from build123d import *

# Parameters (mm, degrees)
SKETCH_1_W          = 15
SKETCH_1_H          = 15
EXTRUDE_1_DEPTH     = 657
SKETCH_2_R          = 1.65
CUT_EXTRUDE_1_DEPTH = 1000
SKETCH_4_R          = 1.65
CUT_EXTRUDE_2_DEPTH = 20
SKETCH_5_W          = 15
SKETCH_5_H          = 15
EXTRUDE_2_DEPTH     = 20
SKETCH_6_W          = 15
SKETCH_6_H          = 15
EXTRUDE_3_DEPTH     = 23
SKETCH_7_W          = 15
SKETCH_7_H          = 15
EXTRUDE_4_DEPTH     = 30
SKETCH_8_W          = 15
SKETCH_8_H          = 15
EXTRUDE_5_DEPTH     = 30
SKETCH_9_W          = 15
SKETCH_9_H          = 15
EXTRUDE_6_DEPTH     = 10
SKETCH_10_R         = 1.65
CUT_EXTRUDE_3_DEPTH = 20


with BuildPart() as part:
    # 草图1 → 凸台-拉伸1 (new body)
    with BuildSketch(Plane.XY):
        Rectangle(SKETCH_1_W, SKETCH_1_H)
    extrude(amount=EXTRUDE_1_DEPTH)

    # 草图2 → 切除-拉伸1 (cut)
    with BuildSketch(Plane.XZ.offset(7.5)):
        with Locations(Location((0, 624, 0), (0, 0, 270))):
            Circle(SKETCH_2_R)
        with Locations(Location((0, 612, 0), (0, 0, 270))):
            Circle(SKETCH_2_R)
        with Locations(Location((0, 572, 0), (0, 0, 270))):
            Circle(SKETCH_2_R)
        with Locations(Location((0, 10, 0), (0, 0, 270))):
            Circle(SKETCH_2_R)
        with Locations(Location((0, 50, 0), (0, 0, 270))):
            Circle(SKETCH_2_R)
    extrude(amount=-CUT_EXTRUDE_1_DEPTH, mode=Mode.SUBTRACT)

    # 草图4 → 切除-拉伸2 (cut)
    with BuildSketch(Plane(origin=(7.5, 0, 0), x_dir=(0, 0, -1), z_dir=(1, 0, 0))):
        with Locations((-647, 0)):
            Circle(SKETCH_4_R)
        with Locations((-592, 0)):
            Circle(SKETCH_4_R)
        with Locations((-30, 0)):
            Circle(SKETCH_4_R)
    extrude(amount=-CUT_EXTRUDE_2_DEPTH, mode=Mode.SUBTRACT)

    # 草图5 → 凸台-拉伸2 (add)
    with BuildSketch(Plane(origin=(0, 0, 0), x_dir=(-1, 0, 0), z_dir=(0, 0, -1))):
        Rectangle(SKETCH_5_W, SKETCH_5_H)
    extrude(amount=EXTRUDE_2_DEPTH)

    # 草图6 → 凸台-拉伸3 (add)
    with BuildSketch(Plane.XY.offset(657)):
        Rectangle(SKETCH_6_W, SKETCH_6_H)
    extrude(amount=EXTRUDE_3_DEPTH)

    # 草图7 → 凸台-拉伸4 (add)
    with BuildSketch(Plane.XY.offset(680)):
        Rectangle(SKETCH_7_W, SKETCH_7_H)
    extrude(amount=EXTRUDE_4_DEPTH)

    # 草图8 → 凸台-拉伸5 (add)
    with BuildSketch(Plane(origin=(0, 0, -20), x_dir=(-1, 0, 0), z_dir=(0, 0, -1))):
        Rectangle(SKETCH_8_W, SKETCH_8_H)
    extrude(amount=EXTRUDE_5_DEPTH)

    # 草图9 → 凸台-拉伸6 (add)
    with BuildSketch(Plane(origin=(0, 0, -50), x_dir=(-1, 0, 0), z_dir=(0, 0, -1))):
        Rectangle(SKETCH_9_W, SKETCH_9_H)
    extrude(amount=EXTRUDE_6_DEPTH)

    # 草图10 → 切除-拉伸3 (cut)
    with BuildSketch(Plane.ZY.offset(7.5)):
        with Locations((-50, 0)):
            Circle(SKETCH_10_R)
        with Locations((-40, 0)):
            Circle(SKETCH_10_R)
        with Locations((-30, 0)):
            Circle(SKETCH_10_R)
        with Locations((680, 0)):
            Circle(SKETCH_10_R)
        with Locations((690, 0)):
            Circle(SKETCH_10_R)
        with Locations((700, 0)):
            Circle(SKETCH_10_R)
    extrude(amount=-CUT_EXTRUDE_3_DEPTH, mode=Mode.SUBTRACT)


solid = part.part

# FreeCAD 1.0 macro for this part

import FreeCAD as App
import Part
import Sketcher
from FreeCAD import Vector


def add_polygon(sketch, points):
    """Adds a closed chain of lines whose ends are joined by coincident constraints."""
    first, n = sketch.GeometryCount, len(points)
    for a, b in zip(points, points[1:] + points[:1]):
        sketch.addGeometry(Part.LineSegment(App.Vector(*a, 0), App.Vector(*b, 0)), False)
    for i in range(n):
        sketch.addConstraint(Sketcher.Constraint("Coincident", first + i, 2, first + (i + 1) % n, 1))

doc = App.newDocument("Part")
body = doc.addObject("PartDesign::Body", "Body")

# Sketch on XY plane
sketch1 = body.newObject("Sketcher::SketchObject", "Sketch")
sketch1.AttachmentSupport = (doc.getObject("XY_Plane"), [""])
sketch1.MapMode = "FlatFace"
add_polygon(sketch1, [(-8, 8), (-8, -8), (8, -8), (8, 8)])  # lines 0-3
sketch1.addConstraint(Sketcher.Constraint("Vertical", 0))
sketch1.addConstraint(Sketcher.Constraint("Horizontal", 1))
sketch1.addConstraint(Sketcher.Constraint("Vertical", 2))
sketch1.addConstraint(Sketcher.Constraint("Horizontal", 3))
sketch1.addConstraint(Sketcher.Constraint("Symmetric", 0, 2, 2, 2, -1, 1))
sketch1.addConstraint(Sketcher.Constraint("Equal", 3, 0))
sketch1.addConstraint(Sketcher.Constraint("DistanceX", 1, 1, 1, 2, 15.0))
pad1 = body.newObject("PartDesign::Pad", "Pad")
pad1.Profile = sketch1
pad1.Length = 657

# Sketch on XZ plane
sketch2 = body.newObject("Sketcher::SketchObject", "Sketch001")
sketch2.AttachmentSupport = (doc.getObject("XZ_Plane"), [""])
sketch2.MapMode = "FlatFace"
sketch2.AttachmentOffset = App.Placement(Vector(0, 0, 7.5), App.Rotation())
sketch2.addGeometry(Part.Circle(Vector(0, 624, 0), Vector(0, 0, 1), 1.6), False)
sketch2.addGeometry(Part.Circle(Vector(0, 612, 0), Vector(0, 0, 1), 1.6), False)
sketch2.addGeometry(Part.Circle(Vector(0, 572, 0), Vector(0, 0, 1), 1.6), False)
sketch2.addGeometry(Part.Circle(Vector(0, 10, 0), Vector(0, 0, 1), 1.6), False)
sketch2.addGeometry(Part.Circle(Vector(0, 50, 0), Vector(0, 0, 1), 1.6), False)
sketch2.addConstraint(Sketcher.Constraint("Equal", 0, 1))
sketch2.addConstraint(Sketcher.Constraint("Equal", 1, 2))
sketch2.addConstraint(Sketcher.Constraint("Equal", 2, 3))
sketch2.addConstraint(Sketcher.Constraint("Equal", 3, 4))
sketch2.addConstraint(Sketcher.Constraint("PointOnObject", 0, 3, -2))
sketch2.addConstraint(Sketcher.Constraint("PointOnObject", 1, 3, -2))
sketch2.addConstraint(Sketcher.Constraint("PointOnObject", 2, 3, -2))
sketch2.addConstraint(Sketcher.Constraint("PointOnObject", 3, 3, -2))
sketch2.addConstraint(Sketcher.Constraint("PointOnObject", 4, 3, -2))
sketch2.addConstraint(Sketcher.Constraint("Diameter", 0, 3.3))
sketch2.addConstraint(Sketcher.Constraint("DistanceY", -1, 1, 0, 3, 624.0))
sketch2.addConstraint(Sketcher.Constraint("DistanceY", -1, 1, 1, 3, 612.0))
sketch2.addConstraint(Sketcher.Constraint("DistanceY", -1, 1, 2, 3, 572.0))
sketch2.addConstraint(Sketcher.Constraint("DistanceY", -1, 1, 3, 3, 10.0))
sketch2.addConstraint(Sketcher.Constraint("DistanceY", -1, 1, 4, 3, 50.0))
pocket1 = body.newObject("PartDesign::Pocket", "Pocket")
pocket1.Profile = sketch2
pocket1.Length = 1000

# Sketch on YZ plane
sketch3 = body.newObject("Sketcher::SketchObject", "Sketch002")
sketch3.AttachmentSupport = (doc.getObject("YZ_Plane"), [""])
sketch3.MapMode = "FlatFace"
sketch3.AttachmentOffset = App.Placement(Vector(0, 0, 7.5), App.Rotation())
sketch3.addGeometry(Part.Circle(Vector(0, 647, 0), Vector(0, 0, 1), 1.6), False)
sketch3.addGeometry(Part.Circle(Vector(0, 592, 0), Vector(0, 0, 1), 1.6), False)
sketch3.addGeometry(Part.Circle(Vector(0, 30, 0), Vector(0, 0, 1), 1.6), False)
sketch3.addConstraint(Sketcher.Constraint("Equal", 0, 1))
sketch3.addConstraint(Sketcher.Constraint("Equal", 1, 2))
sketch3.addConstraint(Sketcher.Constraint("PointOnObject", 0, 3, -2))
sketch3.addConstraint(Sketcher.Constraint("PointOnObject", 1, 3, -2))
sketch3.addConstraint(Sketcher.Constraint("PointOnObject", 2, 3, -2))
sketch3.addConstraint(Sketcher.Constraint("Diameter", 0, 3.3))
sketch3.addConstraint(Sketcher.Constraint("DistanceY", -1, 1, 0, 3, 647.0))
sketch3.addConstraint(Sketcher.Constraint("DistanceY", -1, 1, 1, 3, 592.0))
sketch3.addConstraint(Sketcher.Constraint("DistanceY", -1, 1, 2, 3, 30.0))
pocket2 = body.newObject("PartDesign::Pocket", "Pocket001")
pocket2.Profile = sketch3
pocket2.Length = 20

# Sketch on XY plane
sketch4 = body.newObject("Sketcher::SketchObject", "Sketch003")
sketch4.AttachmentSupport = (doc.getObject("XY_Plane"), [""])
sketch4.MapMode = "FlatFace"
add_polygon(sketch4, [(8, 8), (8, -8), (-8, -8), (-8, 8)])  # lines 0-3
sketch4.addConstraint(Sketcher.Constraint("Vertical", 0))
sketch4.addConstraint(Sketcher.Constraint("Horizontal", 1))
sketch4.addConstraint(Sketcher.Constraint("Vertical", 2))
sketch4.addConstraint(Sketcher.Constraint("Horizontal", 3))
sketch4.addConstraint(Sketcher.Constraint("Symmetric", 0, 2, 2, 2, -1, 1))
sketch4.addConstraint(Sketcher.Constraint("Equal", 3, 0))
sketch4.addConstraint(Sketcher.Constraint("DistanceX", 1, 2, 1, 1, 15.0))
pad2 = body.newObject("PartDesign::Pad", "Pad001")
pad2.Profile = sketch4
pad2.Length = 20
pad2.Reversed = True

# Sketch on XY plane
sketch5 = body.newObject("Sketcher::SketchObject", "Sketch004")
sketch5.AttachmentSupport = (doc.getObject("XY_Plane"), [""])
sketch5.MapMode = "FlatFace"
sketch5.AttachmentOffset = App.Placement(Vector(0, 0, 657), App.Rotation())
add_polygon(sketch5, [(-8, 8), (-8, -8), (8, -8), (8, 8)])  # lines 0-3
sketch5.addConstraint(Sketcher.Constraint("Vertical", 0))
sketch5.addConstraint(Sketcher.Constraint("Horizontal", 1))
sketch5.addConstraint(Sketcher.Constraint("Vertical", 2))
sketch5.addConstraint(Sketcher.Constraint("Horizontal", 3))
sketch5.addConstraint(Sketcher.Constraint("Symmetric", 0, 2, 2, 2, -1, 1))
sketch5.addConstraint(Sketcher.Constraint("Equal", 3, 0))
sketch5.addConstraint(Sketcher.Constraint("DistanceX", 1, 1, 1, 2, 15.0))
pad3 = body.newObject("PartDesign::Pad", "Pad002")
pad3.Profile = sketch5
pad3.Length = 23

# Sketch on XY plane
sketch6 = body.newObject("Sketcher::SketchObject", "Sketch005")
sketch6.AttachmentSupport = (doc.getObject("XY_Plane"), [""])
sketch6.MapMode = "FlatFace"
sketch6.AttachmentOffset = App.Placement(Vector(0, 0, 680), App.Rotation())
add_polygon(sketch6, [(-8, 8), (-8, -8), (8, -8), (8, 8)])  # lines 0-3
sketch6.addConstraint(Sketcher.Constraint("Vertical", 0))
sketch6.addConstraint(Sketcher.Constraint("Horizontal", 1))
sketch6.addConstraint(Sketcher.Constraint("Vertical", 2))
sketch6.addConstraint(Sketcher.Constraint("Horizontal", 3))
sketch6.addConstraint(Sketcher.Constraint("Symmetric", 0, 2, 2, 2, -1, 1))
sketch6.addConstraint(Sketcher.Constraint("Equal", 3, 0))
sketch6.addConstraint(Sketcher.Constraint("DistanceX", 1, 1, 1, 2, 15.0))
pad4 = body.newObject("PartDesign::Pad", "Pad003")
pad4.Profile = sketch6
pad4.Length = 30

# Sketch on XY plane
sketch7 = body.newObject("Sketcher::SketchObject", "Sketch006")
sketch7.AttachmentSupport = (doc.getObject("XY_Plane"), [""])
sketch7.MapMode = "FlatFace"
sketch7.AttachmentOffset = App.Placement(Vector(0, 0, -20), App.Rotation())
add_polygon(sketch7, [(8, 8), (8, -8), (-8, -8), (-8, 8)])  # lines 0-3
sketch7.addConstraint(Sketcher.Constraint("Vertical", 0))
sketch7.addConstraint(Sketcher.Constraint("Horizontal", 1))
sketch7.addConstraint(Sketcher.Constraint("Vertical", 2))
sketch7.addConstraint(Sketcher.Constraint("Horizontal", 3))
sketch7.addConstraint(Sketcher.Constraint("Symmetric", 0, 2, 2, 2, -1, 1))
sketch7.addConstraint(Sketcher.Constraint("Equal", 3, 0))
sketch7.addConstraint(Sketcher.Constraint("DistanceX", 1, 2, 1, 1, 15.0))
pad5 = body.newObject("PartDesign::Pad", "Pad004")
pad5.Profile = sketch7
pad5.Length = 30
pad5.Reversed = True

# Sketch on XY plane
sketch8 = body.newObject("Sketcher::SketchObject", "Sketch007")
sketch8.AttachmentSupport = (doc.getObject("XY_Plane"), [""])
sketch8.MapMode = "FlatFace"
sketch8.AttachmentOffset = App.Placement(Vector(0, 0, -50), App.Rotation())
add_polygon(sketch8, [(8, 8), (8, -8), (-8, -8), (-8, 8)])  # lines 0-3
sketch8.addConstraint(Sketcher.Constraint("Vertical", 0))
sketch8.addConstraint(Sketcher.Constraint("Horizontal", 1))
sketch8.addConstraint(Sketcher.Constraint("Vertical", 2))
sketch8.addConstraint(Sketcher.Constraint("Horizontal", 3))
sketch8.addConstraint(Sketcher.Constraint("Symmetric", 0, 2, 2, 2, -1, 1))
sketch8.addConstraint(Sketcher.Constraint("Equal", 3, 0))
sketch8.addConstraint(Sketcher.Constraint("DistanceX", 1, 2, 1, 1, 15.0))
pad6 = body.newObject("PartDesign::Pad", "Pad005")
pad6.Profile = sketch8
pad6.Length = 10
pad6.Reversed = True

# Sketch on YZ plane
sketch9 = body.newObject("Sketcher::SketchObject", "Sketch008")
sketch9.AttachmentSupport = (doc.getObject("YZ_Plane"), [""])
sketch9.MapMode = "FlatFace"
sketch9.AttachmentOffset = App.Placement(Vector(0, 0, -7.5), App.Rotation())
sketch9.addGeometry(Part.Circle(Vector(0, -50, 0), Vector(0, 0, 1), 1.6), False)
sketch9.addGeometry(Part.Circle(Vector(0, -40, 0), Vector(0, 0, 1), 1.6), False)
sketch9.addGeometry(Part.Circle(Vector(0, -30, 0), Vector(0, 0, 1), 1.6), False)
sketch9.addGeometry(Part.Circle(Vector(0, 680, 0), Vector(0, 0, 1), 1.6), False)
sketch9.addGeometry(Part.Circle(Vector(0, 690, 0), Vector(0, 0, 1), 1.6), False)
sketch9.addGeometry(Part.Circle(Vector(0, 700, 0), Vector(0, 0, 1), 1.6), False)
sketch9.addConstraint(Sketcher.Constraint("Equal", 0, 1))
sketch9.addConstraint(Sketcher.Constraint("Equal", 1, 2))
sketch9.addConstraint(Sketcher.Constraint("Equal", 2, 3))
sketch9.addConstraint(Sketcher.Constraint("Equal", 3, 4))
sketch9.addConstraint(Sketcher.Constraint("Equal", 4, 5))
sketch9.addConstraint(Sketcher.Constraint("PointOnObject", 0, 3, -2))
sketch9.addConstraint(Sketcher.Constraint("PointOnObject", 1, 3, -2))
sketch9.addConstraint(Sketcher.Constraint("PointOnObject", 2, 3, -2))
sketch9.addConstraint(Sketcher.Constraint("PointOnObject", 3, 3, -2))
sketch9.addConstraint(Sketcher.Constraint("PointOnObject", 4, 3, -2))
sketch9.addConstraint(Sketcher.Constraint("PointOnObject", 5, 3, -2))
sketch9.addConstraint(Sketcher.Constraint("Diameter", 0, 3.3))
sketch9.addConstraint(Sketcher.Constraint("DistanceY", 0, 3, -1, 1, 50.0))
sketch9.addConstraint(Sketcher.Constraint("DistanceY", 1, 3, -1, 1, 40.0))
sketch9.addConstraint(Sketcher.Constraint("DistanceY", 2, 3, -1, 1, 30.0))
sketch9.addConstraint(Sketcher.Constraint("DistanceY", -1, 1, 3, 3, 680.0))
sketch9.addConstraint(Sketcher.Constraint("DistanceY", -1, 1, 4, 3, 690.0))
sketch9.addConstraint(Sketcher.Constraint("DistanceY", -1, 1, 5, 3, 700.0))
pocket3 = body.newObject("PartDesign::Pocket", "Pocket002")
pocket3.Profile = sketch9
pocket3.Length = 20
pocket3.Reversed = True

doc.recompute()
